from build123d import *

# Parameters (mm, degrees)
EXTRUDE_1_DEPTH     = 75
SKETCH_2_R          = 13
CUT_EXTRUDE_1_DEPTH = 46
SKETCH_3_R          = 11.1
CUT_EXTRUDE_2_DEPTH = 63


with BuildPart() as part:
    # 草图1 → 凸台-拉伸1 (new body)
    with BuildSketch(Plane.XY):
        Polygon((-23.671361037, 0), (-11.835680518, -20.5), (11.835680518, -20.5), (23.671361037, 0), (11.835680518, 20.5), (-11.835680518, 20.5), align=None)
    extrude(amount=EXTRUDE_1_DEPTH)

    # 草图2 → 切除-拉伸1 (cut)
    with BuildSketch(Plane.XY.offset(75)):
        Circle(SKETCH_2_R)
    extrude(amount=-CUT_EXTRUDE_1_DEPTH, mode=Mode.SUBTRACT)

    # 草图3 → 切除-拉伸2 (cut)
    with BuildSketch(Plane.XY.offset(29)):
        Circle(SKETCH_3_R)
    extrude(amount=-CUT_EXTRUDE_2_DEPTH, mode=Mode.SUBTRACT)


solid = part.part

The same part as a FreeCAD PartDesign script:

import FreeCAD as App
import Part
import Sketcher

V = App.Vector
Q = App.Units.Quantity

doc = App.newDocument("Part")
params = doc.addObject("Spreadsheet::Sheet", "Params")
for row, (alias, value) in enumerate([
    ("pad1_length", "75 mm"),
    ("sketch2_diameter", "26 mm"),
    ("pocket1_length", "46 mm"),
    ("sketch3_diameter", "22.2 mm"),
    ("pocket2_length", "63 mm"),
], start=1):
    params.set(f"A{row}", alias)
    params.set(f"B{row}", "=" + value)
    params.setAlias(f"B{row}", alias)

body = doc.addObject("PartDesign::Body", "Body")

sketch1 = body.newObject("Sketcher::SketchObject", "Sketch")
sketch1.AttachmentSupport = (doc.getObject("XY_Plane"), [""])
sketch1.MapMode = "FlatFace"
sketch1.addGeometry([
    Part.LineSegment(V(-23.671361, 0, 0), V(-11.835681, -20.5, 0)),
    Part.LineSegment(V(-11.835681, -20.5, 0), V(11.835681, -20.5, 0)),
    Part.LineSegment(V(11.835681, -20.5, 0), V(23.671361, 0, 0)),
    Part.LineSegment(V(23.671361, 0, 0), V(11.835681, 20.5, 0)),
    Part.LineSegment(V(11.835681, 20.5, 0), V(-11.835681, 20.5, 0)),
    Part.LineSegment(V(-11.835681, 20.5, 0), V(-23.671361, 0, 0)),
], False)
sketch1.addConstraint([
    Sketcher.Constraint("Coincident", 0, 2, 1, 1),
    Sketcher.Constraint("Coincident", 1, 2, 2, 1),
    Sketcher.Constraint("Coincident", 2, 2, 3, 1),
    Sketcher.Constraint("Coincident", 3, 2, 4, 1),
    Sketcher.Constraint("Coincident", 4, 2, 5, 1),
    Sketcher.Constraint("Coincident", 5, 2, 0, 1),
    Sketcher.Constraint("Horizontal", 1),
    Sketcher.Constraint("Horizontal", 4),
    Sketcher.Constraint("Symmetric", 0, 2, 3, 2, -1, 1),
    Sketcher.Constraint("Symmetric", 2, 2, 5, 2, -1, 1),
    Sketcher.Constraint("PointOnObject", 2, 2, -1),
    Sketcher.Constraint("Parallel", 2, 5),
    Sketcher.Constraint("Vertical", 1, 2, 3, 2),
    Sketcher.Constraint("Angle", 0, Q("-60 deg")),
    Sketcher.Constraint("DistanceY", 1, 2, 3, 2, Q("41 mm")),
    Sketcher.Constraint("DistanceX", 1, 1, 1, 2, Q("23.671361 mm")),
])
pad1 = body.newObject("PartDesign::Pad", "Pad")
pad1.Profile = sketch1
pad1.setExpression("Length", "Params.pad1_length")

sketch2 = body.newObject("Sketcher::SketchObject", "Sketch001")
sketch2.AttachmentSupport = (doc.getObject("XY_Plane"), [""])
sketch2.MapMode = "FlatFace"
sketch2.AttachmentOffset = App.Placement(V(0, 0, 75), App.Rotation())
sketch2.addGeometry(Part.Circle(V(0, 0, 0), V(0, 0, 1), 13), False)
sketch2.addConstraint([
    Sketcher.Constraint("Coincident", 0, 3, -1, 1),
    Sketcher.Constraint("Diameter", 0, Q("26 mm")),
])
sketch2.setExpression("Constraints[1]", "Params.sketch2_diameter")
pocket1 = body.newObject("PartDesign::Pocket", "Pocket")
pocket1.Profile = sketch2
pocket1.setExpression("Length", "Params.pocket1_length")

sketch3 = body.newObject("Sketcher::SketchObject", "Sketch002")
sketch3.AttachmentSupport = (doc.getObject("XY_Plane"), [""])
sketch3.MapMode = "FlatFace"
sketch3.AttachmentOffset = App.Placement(V(0, 0, 29), App.Rotation())
sketch3.addGeometry(Part.Circle(V(0, 0, 0), V(0, 0, 1), 11.1), False)
sketch3.addConstraint([
    Sketcher.Constraint("Coincident", 0, 3, -1, 1),
    Sketcher.Constraint("Diameter", 0, Q("22.2 mm")),
])
sketch3.setExpression("Constraints[1]", "Params.sketch3_diameter")
pocket2 = body.newObject("PartDesign::Pocket", "Pocket001")
pocket2.Profile = sketch3
pocket2.setExpression("Length", "Params.pocket2_length")

doc.recompute()
